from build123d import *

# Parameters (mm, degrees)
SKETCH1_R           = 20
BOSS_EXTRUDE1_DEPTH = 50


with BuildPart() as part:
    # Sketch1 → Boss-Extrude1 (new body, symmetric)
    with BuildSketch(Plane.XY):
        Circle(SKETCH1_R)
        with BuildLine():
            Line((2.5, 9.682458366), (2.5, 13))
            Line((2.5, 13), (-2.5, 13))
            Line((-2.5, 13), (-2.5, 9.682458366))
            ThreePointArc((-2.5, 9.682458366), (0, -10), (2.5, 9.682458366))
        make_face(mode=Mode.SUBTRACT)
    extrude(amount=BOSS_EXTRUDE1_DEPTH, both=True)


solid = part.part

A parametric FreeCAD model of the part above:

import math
import FreeCAD as App
import Part
import Sketcher
from FreeCAD import Vector

doc = App.newDocument("Part")
body = doc.addObject("PartDesign::Body", "Body")

# Sketch on XY plane
sketch1 = body.newObject("Sketcher::SketchObject", "Sketch")
sketch1.AttachmentSupport = (doc.getObject("XY_Plane"), [""])
sketch1.MapMode = "FlatFace"
sketch1.addGeometry(Part.Circle(Vector(0, 0, 0), Vector(0, 0, 1), 20), False)
sketch1.addGeometry(Part.LineSegment(Vector(2.5, 13, 0), Vector(2.5, 9.682458, 0)), False)
sketch1.addGeometry(Part.ArcOfCircle(Part.Circle(Vector(0, 0, 0), Vector(0, 0, 1), 10), math.radians(104.477512), math.radians(435.522488)), False)
sketch1.addGeometry(Part.LineSegment(Vector(-2.5, 9.682458, 0), Vector(-2.5, 13, 0)), False)
sketch1.addGeometry(Part.LineSegment(Vector(-2.5, 13, 0), Vector(2.5, 13, 0)), False)
sketch1.addConstraint(Sketcher.Constraint("Coincident", 1, 2, 2, 2))
sketch1.addConstraint(Sketcher.Constraint("Coincident", 2, 1, 3, 1))
sketch1.addConstraint(Sketcher.Constraint("Coincident", 3, 2, 4, 1))
sketch1.addConstraint(Sketcher.Constraint("Coincident", 4, 2, 1, 1))
sketch1.addConstraint(Sketcher.Constraint("Vertical", 1))
sketch1.addConstraint(Sketcher.Constraint("Vertical", 3))
sketch1.addConstraint(Sketcher.Constraint("Horizontal", 4))
sketch1.addConstraint(Sketcher.Constraint("Coincident", 0, 3, -1, 1))
sketch1.addConstraint(Sketcher.Constraint("Coincident", 2, 3, -1, 1))
sketch1.addConstraint(Sketcher.Constraint("Horizontal", 1, 2, 2, 1))
sketch1.addConstraint(Sketcher.Constraint("Diameter", 0, 40.0))
sketch1.addConstraint(Sketcher.Constraint("Radius", 2, 10.0))
sketch1.addConstraint(Sketcher.Constraint("DistanceX", 4, 1, 4, 2, 5.0))
sketch1.addConstraint(Sketcher.Constraint("DistanceY", -1, 1, 3, 2, 13.0))
pad1 = body.newObject("PartDesign::Pad", "Pad")
pad1.Profile = sketch1
pad1.Length = 100
pad1.Midplane = True

doc.recompute()
